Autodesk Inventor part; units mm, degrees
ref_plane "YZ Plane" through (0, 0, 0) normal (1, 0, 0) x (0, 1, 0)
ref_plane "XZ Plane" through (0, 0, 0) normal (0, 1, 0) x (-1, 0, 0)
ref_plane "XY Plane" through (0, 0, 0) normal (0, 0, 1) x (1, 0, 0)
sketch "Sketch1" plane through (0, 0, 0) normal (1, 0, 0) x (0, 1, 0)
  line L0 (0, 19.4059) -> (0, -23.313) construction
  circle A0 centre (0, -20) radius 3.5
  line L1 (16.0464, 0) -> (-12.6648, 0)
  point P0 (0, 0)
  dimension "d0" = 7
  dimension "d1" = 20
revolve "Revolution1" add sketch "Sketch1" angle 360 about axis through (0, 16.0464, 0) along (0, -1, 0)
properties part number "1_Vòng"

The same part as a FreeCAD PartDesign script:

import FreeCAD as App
import Part
import Sketcher
Q = App.Units.Quantity

doc = App.newDocument("Part")
body = doc.addObject("PartDesign::Body", "Body")

sketch1 = doc.addObject("Sketcher::SketchObject", "Sketch")
body.addObject(sketch1)
sketch1.AttachmentSupport = (doc.YZ_Plane, [""])
sketch1.MapMode = "FlatFace"
sketch1.addGeometry(Part.Circle(App.Vector(0, -20, 0), App.Vector(0, 0, 1), 3.5), False)
sketch1.addConstraint(Sketcher.Constraint("PointOnObject", 0, 3, -2))
sketch1.addConstraint(Sketcher.Constraint("Diameter", 0, Q("7 mm")))
sketch1.addConstraint(Sketcher.Constraint("DistanceY", 0, 3, -1, 1, Q("20 mm")))
revolution = doc.addObject("PartDesign::Revolution", "Revolution")
body.addObject(revolution)
revolution.Profile = sketch1
revolution.ReferenceAxis = (sketch1, ["H_Axis"])
revolution.Angle = 360

doc.recompute()
